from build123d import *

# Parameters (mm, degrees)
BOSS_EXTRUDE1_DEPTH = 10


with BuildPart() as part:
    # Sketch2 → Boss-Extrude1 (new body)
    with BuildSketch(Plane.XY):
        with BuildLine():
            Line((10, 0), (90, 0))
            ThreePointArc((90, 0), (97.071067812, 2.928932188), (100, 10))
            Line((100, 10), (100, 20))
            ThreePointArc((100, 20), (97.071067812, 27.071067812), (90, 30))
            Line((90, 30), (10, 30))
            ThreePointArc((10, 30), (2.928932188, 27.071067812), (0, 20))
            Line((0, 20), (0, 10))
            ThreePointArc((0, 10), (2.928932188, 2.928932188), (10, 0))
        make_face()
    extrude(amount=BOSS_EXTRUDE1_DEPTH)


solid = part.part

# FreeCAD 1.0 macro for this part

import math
import FreeCAD as App
import Part
import Sketcher
Q = App.Units.Quantity

doc = App.newDocument("Part")
params = doc.addObject("Spreadsheet::Sheet", "Params")
for row, (alias, value) in enumerate([
    ("sketch1_radius", "10 mm"),
    ("sketch1_width", "80 mm"),
    ("sketch1_height", "10 mm"),
    ("pad1_length", "10 mm"),
], start=1):
    params.set(f"A{row}", alias)
    params.set(f"B{row}", "=" + value)
    params.setAlias(f"B{row}", alias)

body = doc.addObject("PartDesign::Body", "Body")

# Sketch on XY plane
sketch1 = body.newObject("Sketcher::SketchObject", "Sketch")
sketch1.AttachmentSupport = (doc.getObject("XY_Plane"), [""])
sketch1.MapMode = "FlatFace"
sketch1.addGeometry([
    Part.LineSegment(App.Vector(10, 0, 0), App.Vector(90, 0, 0)),  # 0
    Part.ArcOfCircle(Part.Circle(App.Vector(90, 10, 0), App.Vector(0, 0, 1), 10), math.radians(-90), math.radians(0)),  # 1
    Part.LineSegment(App.Vector(100, 10, 0), App.Vector(100, 20, 0)),  # 2
    Part.ArcOfCircle(Part.Circle(App.Vector(90, 20, 0), App.Vector(0, 0, 1), 10), math.radians(0), math.radians(90)),  # 3
    Part.LineSegment(App.Vector(90, 30, 0), App.Vector(10, 30, 0)),  # 4
    Part.ArcOfCircle(Part.Circle(App.Vector(10, 20, 0), App.Vector(0, 0, 1), 10), math.radians(90), math.radians(180)),  # 5
    Part.LineSegment(App.Vector(0, 20, 0), App.Vector(0, 10, 0)),  # 6
    Part.ArcOfCircle(Part.Circle(App.Vector(10, 10, 0), App.Vector(0, 0, 1), 10), math.radians(180), math.radians(270)),  # 7
], False)
sketch1.addConstraint([
    Sketcher.Constraint("Tangent", 0, 2, 1, 1),
    Sketcher.Constraint("Tangent", 1, 2, 2, 1),
    Sketcher.Constraint("Tangent", 2, 2, 3, 1),
    Sketcher.Constraint("Tangent", 3, 2, 4, 1),
    Sketcher.Constraint("Tangent", 4, 2, 5, 1),
    Sketcher.Constraint("Tangent", 5, 2, 6, 1),
    Sketcher.Constraint("Tangent", 6, 2, 7, 1),
    Sketcher.Constraint("Tangent", 7, 2, 0, 1),
    Sketcher.Constraint("Horizontal", 0),
    Sketcher.Constraint("Vertical", 2),
    Sketcher.Constraint("Horizontal", 4),
    Sketcher.Constraint("Vertical", 6),
    Sketcher.Constraint("Equal", 1, 3),
    Sketcher.Constraint("Equal", 3, 5),
    Sketcher.Constraint("Equal", 5, 7),
    Sketcher.Constraint("PointOnObject", 0, 2, -1),
    Sketcher.Constraint("PointOnObject", 5, 2, -2),
    Sketcher.Constraint("Radius", 1, Q("10 mm")),
    Sketcher.Constraint("DistanceX", 0, 1, 0, 2, Q("80 mm")),
    Sketcher.Constraint("DistanceY", 2, 1, 2, 2, Q("10 mm")),
])
sketch1.setExpression("Constraints[17]", "Params.sketch1_radius")
sketch1.setExpression("Constraints[18]", "Params.sketch1_width")
sketch1.setExpression("Constraints[19]", "Params.sketch1_height")
pad1 = body.newObject("PartDesign::Pad", "Pad")
pad1.Profile = sketch1
pad1.setExpression("Length", "Params.pad1_length")

doc.recompute()
